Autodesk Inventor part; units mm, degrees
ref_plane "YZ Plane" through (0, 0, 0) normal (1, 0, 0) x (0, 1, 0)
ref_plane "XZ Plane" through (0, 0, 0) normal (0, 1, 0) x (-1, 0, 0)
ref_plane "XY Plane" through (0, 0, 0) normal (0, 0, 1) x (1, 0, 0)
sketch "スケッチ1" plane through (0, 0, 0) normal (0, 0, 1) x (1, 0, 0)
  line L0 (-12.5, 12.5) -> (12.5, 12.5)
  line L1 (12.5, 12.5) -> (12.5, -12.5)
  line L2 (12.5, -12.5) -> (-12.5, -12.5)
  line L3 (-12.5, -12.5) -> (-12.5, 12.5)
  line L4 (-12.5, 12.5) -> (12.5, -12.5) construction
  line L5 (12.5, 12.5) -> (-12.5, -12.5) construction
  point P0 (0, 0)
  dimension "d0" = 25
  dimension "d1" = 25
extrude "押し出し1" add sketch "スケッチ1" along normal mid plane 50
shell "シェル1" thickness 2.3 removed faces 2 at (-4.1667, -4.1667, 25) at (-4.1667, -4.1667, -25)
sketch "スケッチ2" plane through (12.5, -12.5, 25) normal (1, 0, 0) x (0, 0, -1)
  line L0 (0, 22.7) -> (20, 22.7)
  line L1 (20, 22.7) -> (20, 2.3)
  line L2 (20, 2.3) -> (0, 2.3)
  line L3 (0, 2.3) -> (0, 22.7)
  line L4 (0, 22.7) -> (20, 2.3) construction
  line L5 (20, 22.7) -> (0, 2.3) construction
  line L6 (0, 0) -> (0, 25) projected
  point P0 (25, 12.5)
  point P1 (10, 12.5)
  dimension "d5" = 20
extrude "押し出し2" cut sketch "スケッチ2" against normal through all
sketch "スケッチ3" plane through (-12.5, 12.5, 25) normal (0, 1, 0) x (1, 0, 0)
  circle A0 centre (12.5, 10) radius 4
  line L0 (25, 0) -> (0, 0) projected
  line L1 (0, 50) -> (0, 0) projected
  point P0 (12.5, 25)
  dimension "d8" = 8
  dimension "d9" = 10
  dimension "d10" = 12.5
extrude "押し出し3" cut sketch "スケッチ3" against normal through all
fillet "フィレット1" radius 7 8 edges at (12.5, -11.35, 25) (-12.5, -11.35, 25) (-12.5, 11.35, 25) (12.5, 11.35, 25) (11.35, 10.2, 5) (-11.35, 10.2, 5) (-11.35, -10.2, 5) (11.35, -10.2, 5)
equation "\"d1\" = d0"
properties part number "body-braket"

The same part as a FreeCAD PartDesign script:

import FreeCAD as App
import Part
import Sketcher

V = App.Vector
Q = App.Units.Quantity


def edges_at(feature, points):
    """Names of the edges that pass closest to the given points."""
    edges = feature.Shape.Edges
    near = lambda p: min(range(len(edges)), key=lambda i: edges[i].distToShape(Part.Vertex(*p))[0])
    return sorted({f"Edge{near(p) + 1}" for p in points})


def faces_at(feature, points):
    """Names of the faces that lie closest to the given points."""
    faces = feature.Shape.Faces
    near = lambda p: min(range(len(faces)), key=lambda i: faces[i].distToShape(Part.Vertex(*p))[0])
    return sorted({f"Face{near(p) + 1}" for p in points})


def add_polygon(sketch, points):
    """Adds a closed chain of lines whose ends are joined by coincident constraints."""
    first, n = sketch.GeometryCount, len(points)
    for a, b in zip(points, points[1:] + points[:1]):
        sketch.addGeometry(Part.LineSegment(App.Vector(*a, 0), App.Vector(*b, 0)), False)
    for i in range(n):
        sketch.addConstraint(Sketcher.Constraint("Coincident", first + i, 2, first + (i + 1) % n, 1))

doc = App.newDocument("Part")
body = doc.addObject("PartDesign::Body", "Body")

# Sketch on XY plane
sketch1 = body.newObject("Sketcher::SketchObject", "Sketch")
sketch1.AttachmentSupport = (doc.getObject("XY_Plane"), [""])
sketch1.MapMode = "FlatFace"
add_polygon(sketch1, [(12.5, 12.5), (-12.5, 12.5), (-12.5, -12.5), (12.5, -12.5)])  # lines 0-3
sketch1.addConstraint(Sketcher.Constraint("Horizontal", 0))
sketch1.addConstraint(Sketcher.Constraint("Vertical", 1))
sketch1.addConstraint(Sketcher.Constraint("Horizontal", 2))
sketch1.addConstraint(Sketcher.Constraint("Vertical", 3))
sketch1.addConstraint(Sketcher.Constraint("Symmetric", 0, 2, 2, 2, -1, 1))
sketch1.addConstraint(Sketcher.Constraint("Equal", 2, 1))
sketch1.addConstraint(Sketcher.Constraint("DistanceX", 0, 2, 0, 1, Q("25 mm")))
pad1 = body.newObject("PartDesign::Pad", "Pad")
pad1.Profile = sketch1
pad1.Length = 50
pad1.Midplane = True
doc.recompute()

thickness = body.newObject("PartDesign::Thickness", "Thickness")
thickness.Base = (pad1, faces_at(pad1, [(-4.167, -4.167, 25), (-4.167, -4.167, -25)]))
thickness.Value = 2.3
thickness.Reversed = True
thickness.Join = "Intersection"

# Sketch on YZ plane
sketch2 = body.newObject("Sketcher::SketchObject", "Sketch001")
sketch2.AttachmentSupport = (doc.getObject("YZ_Plane"), [""])
sketch2.MapMode = "FlatFace"
sketch2.AttachmentOffset = App.Placement(V(0, 0, 12.5), App.Rotation())
add_polygon(sketch2, [(10.2, 5), (10.2, 25), (-10.2, 25), (-10.2, 5)])  # lines 0-3
sketch2.addConstraint(Sketcher.Constraint("Vertical", 0))
sketch2.addConstraint(Sketcher.Constraint("Horizontal", 1))
sketch2.addConstraint(Sketcher.Constraint("Vertical", 2))
sketch2.addConstraint(Sketcher.Constraint("Horizontal", 3))
sketch2.addConstraint(Sketcher.Constraint("DistanceY", 0, 1, 0, 2, Q("20 mm")))
sketch2.addConstraint(Sketcher.Constraint("DistanceX", 1, 2, 1, 1, Q("20.4 mm")))
sketch2.addConstraint(Sketcher.Constraint("DistanceY", -1, 1, 0, 2, Q("25 mm")))
sketch2.addConstraint(Sketcher.Constraint("DistanceX", -1, 1, 0, 2, Q("10.2 mm")))
pocket1 = body.newObject("PartDesign::Pocket", "Pocket")
pocket1.Profile = sketch2
pocket1.Type = "ThroughAll"

# Sketch on XZ plane
sketch3 = body.newObject("Sketcher::SketchObject", "Sketch002")
sketch3.AttachmentSupport = (doc.getObject("XZ_Plane"), [""])
sketch3.MapMode = "FlatFace"
sketch3.AttachmentOffset = App.Placement(V(0, 0, -12.5), App.Rotation())
sketch3.addGeometry(Part.Circle(V(0, 15, 0), V(0, 0, 1), 4), False)
sketch3.addConstraint(Sketcher.Constraint("PointOnObject", 0, 3, -2))
sketch3.addConstraint(Sketcher.Constraint("Diameter", 0, Q("8 mm")))
sketch3.addConstraint(Sketcher.Constraint("DistanceY", -1, 1, 0, 3, Q("15 mm")))
pocket2 = body.newObject("PartDesign::Pocket", "Pocket001")
pocket2.Profile = sketch3
pocket2.Type = "ThroughAll"
pocket2.Reversed = True
doc.recompute()

fillet = body.newObject("PartDesign::Fillet", "Fillet")
fillet.Base = (pocket2, edges_at(pocket2, [
    (12.5, -11.35, 25),
    (-12.5, -11.35, 25),
    (-12.5, 11.35, 25),
    (12.5, 11.35, 25),
    (11.35, 10.2, 5),
    (-11.35, 10.2, 5),
    (-11.35, -10.2, 5),
    (11.35, -10.2, 5),
]))
fillet.Radius = 7

doc.recompute()
